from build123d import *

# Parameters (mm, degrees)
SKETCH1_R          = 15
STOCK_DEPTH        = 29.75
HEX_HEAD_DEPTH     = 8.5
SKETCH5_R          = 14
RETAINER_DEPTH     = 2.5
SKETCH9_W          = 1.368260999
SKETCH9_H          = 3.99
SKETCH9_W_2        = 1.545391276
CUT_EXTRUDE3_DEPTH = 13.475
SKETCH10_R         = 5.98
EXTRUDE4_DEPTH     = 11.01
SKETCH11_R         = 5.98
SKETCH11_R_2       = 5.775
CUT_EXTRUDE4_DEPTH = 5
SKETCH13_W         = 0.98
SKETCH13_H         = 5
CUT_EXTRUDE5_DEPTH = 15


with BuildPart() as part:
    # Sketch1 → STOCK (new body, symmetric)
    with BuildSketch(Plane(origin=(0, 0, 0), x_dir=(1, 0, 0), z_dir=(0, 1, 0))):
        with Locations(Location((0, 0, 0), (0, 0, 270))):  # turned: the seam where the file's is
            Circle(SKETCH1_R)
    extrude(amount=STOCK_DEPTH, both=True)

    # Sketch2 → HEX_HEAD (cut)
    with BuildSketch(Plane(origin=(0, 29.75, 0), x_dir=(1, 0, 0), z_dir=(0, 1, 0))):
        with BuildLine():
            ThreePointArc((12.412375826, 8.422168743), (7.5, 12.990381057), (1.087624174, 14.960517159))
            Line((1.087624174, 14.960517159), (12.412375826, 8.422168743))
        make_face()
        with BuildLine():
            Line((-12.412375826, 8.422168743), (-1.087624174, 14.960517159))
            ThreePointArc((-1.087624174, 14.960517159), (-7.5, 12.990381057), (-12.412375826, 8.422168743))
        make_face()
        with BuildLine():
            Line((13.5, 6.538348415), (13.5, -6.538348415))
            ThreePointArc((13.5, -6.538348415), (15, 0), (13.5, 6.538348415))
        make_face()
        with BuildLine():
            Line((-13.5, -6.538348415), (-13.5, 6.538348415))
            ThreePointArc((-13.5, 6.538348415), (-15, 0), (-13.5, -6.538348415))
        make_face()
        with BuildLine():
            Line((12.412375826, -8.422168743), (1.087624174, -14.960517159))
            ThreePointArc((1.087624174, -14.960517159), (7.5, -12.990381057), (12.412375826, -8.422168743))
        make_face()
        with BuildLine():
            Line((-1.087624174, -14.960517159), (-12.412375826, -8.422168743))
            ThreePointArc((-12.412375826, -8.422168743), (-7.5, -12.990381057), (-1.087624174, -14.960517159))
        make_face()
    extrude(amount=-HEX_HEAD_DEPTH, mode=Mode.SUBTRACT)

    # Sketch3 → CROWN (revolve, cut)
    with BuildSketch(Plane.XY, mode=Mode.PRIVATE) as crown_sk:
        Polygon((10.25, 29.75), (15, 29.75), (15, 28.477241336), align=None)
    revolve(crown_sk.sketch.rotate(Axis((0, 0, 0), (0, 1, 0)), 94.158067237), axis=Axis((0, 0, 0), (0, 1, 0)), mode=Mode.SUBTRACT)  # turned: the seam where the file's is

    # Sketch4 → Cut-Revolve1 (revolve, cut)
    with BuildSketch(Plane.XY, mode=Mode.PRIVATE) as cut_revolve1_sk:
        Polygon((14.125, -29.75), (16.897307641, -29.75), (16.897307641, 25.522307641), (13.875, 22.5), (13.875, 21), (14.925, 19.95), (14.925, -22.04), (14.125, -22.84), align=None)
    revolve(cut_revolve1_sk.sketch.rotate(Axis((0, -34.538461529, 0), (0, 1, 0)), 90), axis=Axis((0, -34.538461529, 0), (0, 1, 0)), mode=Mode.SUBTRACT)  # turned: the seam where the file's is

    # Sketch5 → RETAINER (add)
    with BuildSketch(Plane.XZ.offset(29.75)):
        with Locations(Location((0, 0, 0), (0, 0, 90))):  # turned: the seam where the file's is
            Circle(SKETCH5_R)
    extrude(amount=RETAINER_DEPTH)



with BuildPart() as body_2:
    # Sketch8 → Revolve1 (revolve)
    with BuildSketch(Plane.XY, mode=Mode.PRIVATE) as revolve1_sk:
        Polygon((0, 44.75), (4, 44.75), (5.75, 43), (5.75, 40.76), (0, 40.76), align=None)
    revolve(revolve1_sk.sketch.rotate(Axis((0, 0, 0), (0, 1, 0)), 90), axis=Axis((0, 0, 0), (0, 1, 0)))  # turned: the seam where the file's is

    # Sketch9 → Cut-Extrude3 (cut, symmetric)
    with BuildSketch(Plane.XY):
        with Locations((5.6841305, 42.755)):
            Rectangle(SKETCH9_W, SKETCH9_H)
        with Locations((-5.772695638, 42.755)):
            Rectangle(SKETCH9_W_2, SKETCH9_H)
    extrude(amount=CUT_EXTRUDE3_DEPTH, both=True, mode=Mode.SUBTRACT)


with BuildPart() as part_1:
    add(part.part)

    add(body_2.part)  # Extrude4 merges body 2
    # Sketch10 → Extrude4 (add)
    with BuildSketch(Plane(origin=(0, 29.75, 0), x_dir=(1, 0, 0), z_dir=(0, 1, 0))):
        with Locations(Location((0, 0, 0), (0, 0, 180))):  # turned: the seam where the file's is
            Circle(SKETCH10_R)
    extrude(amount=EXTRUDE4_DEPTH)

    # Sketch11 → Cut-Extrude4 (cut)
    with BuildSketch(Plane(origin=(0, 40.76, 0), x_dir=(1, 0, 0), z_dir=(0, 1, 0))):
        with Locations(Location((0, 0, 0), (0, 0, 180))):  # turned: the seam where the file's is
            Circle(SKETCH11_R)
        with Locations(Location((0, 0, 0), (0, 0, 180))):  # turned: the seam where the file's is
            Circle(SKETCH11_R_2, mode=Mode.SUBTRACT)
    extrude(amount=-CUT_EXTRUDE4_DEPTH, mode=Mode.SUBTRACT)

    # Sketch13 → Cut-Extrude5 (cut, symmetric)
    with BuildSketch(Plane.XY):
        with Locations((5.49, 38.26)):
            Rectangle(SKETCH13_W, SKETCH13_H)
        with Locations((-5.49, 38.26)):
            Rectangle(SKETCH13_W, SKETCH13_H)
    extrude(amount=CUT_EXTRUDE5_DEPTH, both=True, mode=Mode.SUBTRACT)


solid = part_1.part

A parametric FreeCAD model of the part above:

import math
import FreeCAD as App
import Part
import Sketcher

V = App.Vector
Q = App.Units.Quantity

doc = App.newDocument("Part")
body = doc.addObject("PartDesign::Body", "Body")

# Sketch on XZ plane
sketch1 = body.newObject("Sketcher::SketchObject", "Sketch")
sketch1.AttachmentSupport = (doc.getObject("XZ_Plane"), [""])
sketch1.MapMode = "FlatFace"
sketch1.addGeometry(Part.Circle(V(0, 0, 0), V(0, 0, 1), 15), False)
sketch1.addConstraint([
    Sketcher.Constraint("Coincident", 0, 3, -1, 1),
    Sketcher.Constraint("Diameter", 0, 30.0),
])
pad1 = body.newObject("PartDesign::Pad", "Pad")
pad1.Profile = sketch1
pad1.Length = 59.5
pad1.Midplane = True

# Sketch on XZ plane
sketch2 = body.newObject("Sketcher::SketchObject", "Sketch001")
sketch2.AttachmentSupport = (doc.getObject("XZ_Plane"), [""])
sketch2.MapMode = "FlatFace"
sketch2.AttachmentOffset = App.Placement(V(0, 0, -29.75), App.Rotation())
sketch2.addGeometry([
    Part.ArcOfCircle(Part.Circle(V(0, 0, 0), V(0, 0, 1), 15), math.radians(-86), math.radians(-34)),  # 0
    Part.LineSegment(V(1, -15, 0), V(12, -8, 0)),  # 1
    Part.LineSegment(V(-12, -8, 0), V(-1, -15, 0)),  # 2
    Part.ArcOfCircle(Part.Circle(V(0, 0, 0), V(0, 0, 1), 15), math.radians(-146), math.radians(-94)),  # 3
    Part.LineSegment(V(14, -7, 0), V(14, 7, 0)),  # 4
    Part.ArcOfCircle(Part.Circle(V(0, 0, 0), V(0, 0, 1), 15), math.radians(-26), math.radians(26)),  # 5
    Part.LineSegment(V(-14, 7, 0), V(-14, -7, 0)),  # 6
    Part.ArcOfCircle(Part.Circle(V(0, 0, 0), V(0, 0, 1), 15), math.radians(154), math.radians(206)),  # 7
    Part.LineSegment(V(12, 8, 0), V(1, 15, 0)),  # 8
    Part.ArcOfCircle(Part.Circle(V(0, 0, 0), V(0, 0, 1), 15), math.radians(34), math.radians(86)),  # 9
    Part.LineSegment(V(-1, 15, 0), V(-12, 8, 0)),  # 10
    Part.ArcOfCircle(Part.Circle(V(0, 0, 0), V(0, 0, 1), 15), math.radians(94), math.radians(146)),  # 11
], False)
sketch2.addConstraint([
    Sketcher.Constraint("Coincident", 0, 1, 1, 1),
    Sketcher.Constraint("Coincident", 1, 2, 0, 2),
    Sketcher.Constraint("Coincident", 2, 1, 3, 1),
    Sketcher.Constraint("Coincident", 3, 2, 2, 2),
    Sketcher.Constraint("Coincident", 4, 1, 5, 1),
    Sketcher.Constraint("Coincident", 5, 2, 4, 2),
    Sketcher.Constraint("Coincident", 6, 1, 7, 1),
    Sketcher.Constraint("Coincident", 7, 2, 6, 2),
    Sketcher.Constraint("Coincident", 8, 1, 9, 1),
    Sketcher.Constraint("Coincident", 9, 2, 8, 2),
    Sketcher.Constraint("Coincident", 10, 1, 11, 1),
    Sketcher.Constraint("Coincident", 11, 2, 10, 2),
    Sketcher.Constraint("Vertical", 4),
    Sketcher.Constraint("Vertical", 6),
    Sketcher.Constraint("Coincident", 0, 3, -1, 1),
    Sketcher.Constraint("Coincident", 3, 3, -1, 1),
    Sketcher.Constraint("Coincident", 5, 3, -1, 1),
    Sketcher.Constraint("Coincident", 7, 3, -1, 1),
    Sketcher.Constraint("Coincident", 9, 3, -1, 1),
    Sketcher.Constraint("Coincident", 11, 3, -1, 1),
    Sketcher.Constraint("Equal", 0, 3),
    Sketcher.Constraint("Equal", 3, 5),
    Sketcher.Constraint("Equal", 5, 7),
    Sketcher.Constraint("Equal", 7, 9),
    Sketcher.Constraint("Equal", 9, 11),
    Sketcher.Constraint("Parallel", 2, 8),
    Sketcher.Constraint("Parallel", 1, 10),
    Sketcher.Constraint("Horizontal", 1, 2, 2, 1),
    Sketcher.Constraint("Horizontal", 0, 1, 3, 2),
    Sketcher.Constraint("Horizontal", 5, 2, 6, 1),
    Sketcher.Constraint("Horizontal", 9, 2, 10, 1),
    Sketcher.Constraint("Vertical", 1, 2, 8, 1),
    Sketcher.Constraint("Radius", 0, 15.0),
    Sketcher.Constraint("Angle", 1, Q("30 deg")),
    Sketcher.Constraint("DistanceX", -1, 1, 4, 1, 13.5),
    Sketcher.Constraint("DistanceX", 2, 1, 0, 1, 13.5),
])
pocket1 = body.newObject("PartDesign::Pocket", "Pocket")
pocket1.Profile = sketch2
pocket1.Length = 8.5
pocket1.Reversed = True

# Sketch on XY plane
sketch3 = body.newObject("Sketcher::SketchObject", "Sketch002")
sketch3.AttachmentSupport = (doc.getObject("XY_Plane"), [""])
sketch3.MapMode = "FlatFace"
sketch3.addGeometry([
    Part.LineSegment(V(15, 29.8, 0), V(10.2, 29.8, 0)),
    Part.LineSegment(V(10.2, 29.8, 0), V(15, 28.5, 0)),
    Part.LineSegment(V(15, 28.5, 0), V(15, 29.8, 0)),
], False)
sketch3.addConstraint([
    Sketcher.Constraint("Coincident", 0, 2, 1, 1),
    Sketcher.Constraint("Coincident", 1, 2, 2, 1),
    Sketcher.Constraint("Coincident", 2, 2, 0, 1),
    Sketcher.Constraint("Horizontal", 0),
    Sketcher.Constraint("Vertical", 2),
    Sketcher.Constraint("Angle", 1, Q("-15 deg")),
    Sketcher.Constraint("DistanceX", -1, 1, 1, 2, 15.0),
    Sketcher.Constraint("DistanceX", 0, 2, 0, 1, 4.75),
    Sketcher.Constraint("DistanceY", -1, 1, 0, 2, 29.75),
])
groove = body.newObject("PartDesign::Groove", "Groove")
groove.Profile = sketch3
groove.ReferenceAxis = (sketch3, ["V_Axis"])
groove.Angle = 360

# Sketch on XY plane
sketch4 = body.newObject("Sketcher::SketchObject", "Sketch003")
sketch4.AttachmentSupport = (doc.getObject("XY_Plane"), [""])
sketch4.MapMode = "FlatFace"
sketch4.addGeometry([
    Part.LineSegment(V(14.1, -29.8, 0), V(16.9, -29.8, 0)),  # 0
    Part.LineSegment(V(16.9, -29.8, 0), V(16.9, 25.5, 0)),  # 1
    Part.LineSegment(V(16.9, 25.5, 0), V(13.9, 22.5, 0)),  # 2
    Part.LineSegment(V(13.9, 22.5, 0), V(13.9, 21, 0)),  # 3
    Part.LineSegment(V(13.9, 21, 0), V(14.9, 19.9, 0)),  # 4
    Part.LineSegment(V(14.9, 19.9, 0), V(14.9, -22, 0)),  # 5
    Part.LineSegment(V(14.9, -22, 0), V(14.1, -22.8, 0)),  # 6
    Part.LineSegment(V(14.1, -22.8, 0), V(14.1, -29.8, 0)),  # 7
], False)
sketch4.addConstraint([
    Sketcher.Constraint("Coincident", 0, 2, 1, 1),
    Sketcher.Constraint("Coincident", 1, 2, 2, 1),
    Sketcher.Constraint("Coincident", 2, 2, 3, 1),
    Sketcher.Constraint("Coincident", 3, 2, 4, 1),
    Sketcher.Constraint("Coincident", 4, 2, 5, 1),
    Sketcher.Constraint("Coincident", 5, 2, 6, 1),
    Sketcher.Constraint("Coincident", 6, 2, 7, 1),
    Sketcher.Constraint("Coincident", 7, 2, 0, 1),
    Sketcher.Constraint("Horizontal", 0),
    Sketcher.Constraint("Vertical", 1),
    Sketcher.Constraint("Vertical", 3),
    Sketcher.Constraint("Vertical", 5),
    Sketcher.Constraint("Vertical", 7),
    Sketcher.Constraint("Perpendicular", 2, 4),
    Sketcher.Constraint("Perpendicular", 4, 6),
    Sketcher.Constraint("Angle", 2, Q("-135 deg")),
    Sketcher.Constraint("DistanceY", 3, 2, 3, 1, 1.5),
    Sketcher.Constraint("DistanceY", -1, 1, 3, 2, 21.0),
    Sketcher.Constraint("DistanceY", 5, 2, 5, 1, 41.99),
    Sketcher.Constraint("DistanceY", 7, 2, 7, 1, 6.91),
    Sketcher.Constraint("DistanceY", 0, 2, 4, 2, 49.7),
    Sketcher.Constraint("DistanceY", 0, 2, -1, 1, 29.75),
    Sketcher.Constraint("DistanceX", -1, 1, 2, 2, 13.875),
    Sketcher.Constraint("Distance", 2, 4.274188),
])
groove2 = body.newObject("PartDesign::Groove", "Groove001")
groove2.Profile = sketch4
groove2.ReferenceAxis = (sketch4, ["V_Axis"])
groove2.Angle = 360

# Sketch on XZ plane
sketch5 = body.newObject("Sketcher::SketchObject", "Sketch004")
sketch5.AttachmentSupport = (doc.getObject("XZ_Plane"), [""])
sketch5.MapMode = "FlatFace"
sketch5.AttachmentOffset = App.Placement(V(0, 0, 29.75), App.Rotation())
sketch5.addGeometry(Part.Circle(V(0, 0, 0), V(0, 0, 1), 14), False)
sketch5.addConstraint([
    Sketcher.Constraint("Coincident", 0, 3, -1, 1),
    Sketcher.Constraint("Diameter", 0, 28.0),
])
pad2 = body.newObject("PartDesign::Pad", "Pad001")
pad2.Profile = sketch5
pad2.Length = 2.5
body2 = doc.addObject("PartDesign::Body", "Body001")

# Sketch on XY plane
sketch6 = body2.newObject("Sketcher::SketchObject", "Sketch005")
sketch6.AttachmentSupport = (doc.getObject("XY_Plane001"), [""])
sketch6.MapMode = "FlatFace"
sketch6.addGeometry([
    Part.LineSegment(V(4, 44.8, 0), V(0, 44.8, 0)),  # 0
    Part.LineSegment(V(0, 44.8, 0), V(0, 40.8, 0)),  # 1
    Part.LineSegment(V(0, 40.8, 0), V(5.8, 40.8, 0)),  # 2
    Part.LineSegment(V(5.8, 40.8, 0), V(5.8, 43, 0)),  # 3
    Part.LineSegment(V(5.8, 43, 0), V(4, 44.8, 0)),  # 4
], False)
sketch6.addConstraint([
    Sketcher.Constraint("Coincident", 0, 2, 1, 1),
    Sketcher.Constraint("Coincident", 1, 2, 2, 1),
    Sketcher.Constraint("Coincident", 2, 2, 3, 1),
    Sketcher.Constraint("Coincident", 3, 2, 4, 1),
    Sketcher.Constraint("Coincident", 4, 2, 0, 1),
    Sketcher.Constraint("Horizontal", 0),
    Sketcher.Constraint("Vertical", 1),
    Sketcher.Constraint("Horizontal", 2),
    Sketcher.Constraint("Vertical", 3),
    Sketcher.Constraint("PointOnObject", 0, 2, -2),
    Sketcher.Constraint("DistanceX", 0, 2, 0, 1, 4.0),
    Sketcher.Constraint("Angle", 4, Q("135 deg")),
    Sketcher.Constraint("DistanceY", -1, 1, 3, 2, 43.0),
    Sketcher.Constraint("DistanceX", 2, 1, 2, 2, 5.75),
    Sketcher.Constraint("DistanceY", 1, 2, 1, 1, 3.99),
])
revolution = body2.newObject("PartDesign::Revolution", "Revolution")
revolution.Profile = sketch6
revolution.ReferenceAxis = (sketch6, ["V_Axis"])
revolution.Angle = 360

# Sketch on XY plane
sketch7 = body2.newObject("Sketcher::SketchObject", "Sketch006")
sketch7.AttachmentSupport = (doc.getObject("XY_Plane001"), [""])
sketch7.MapMode = "FlatFace"
sketch7.addGeometry([
    Part.LineSegment(V(5, 44.8, 0), V(5, 40.8, 0)),  # 0
    Part.LineSegment(V(5, 40.8, 0), V(6.4, 40.8, 0)),  # 1
    Part.LineSegment(V(6.4, 40.8, 0), V(6.4, 44.8, 0)),  # 2
    Part.LineSegment(V(6.4, 44.8, 0), V(5, 44.8, 0)),  # 3
    Part.LineSegment(V(-6.5, 44.8, 0), V(-6.5, 40.8, 0)),  # 4
    Part.LineSegment(V(-6.5, 40.8, 0), V(-5, 40.8, 0)),  # 5
    Part.LineSegment(V(-5, 40.8, 0), V(-5, 44.8, 0)),  # 6
    Part.LineSegment(V(-5, 44.8, 0), V(-6.5, 44.8, 0)),  # 7
], False)
sketch7.addConstraint([
    Sketcher.Constraint("Coincident", 0, 2, 1, 1),
    Sketcher.Constraint("Coincident", 1, 2, 2, 1),
    Sketcher.Constraint("Coincident", 2, 2, 3, 1),
    Sketcher.Constraint("Coincident", 3, 2, 0, 1),
    Sketcher.Constraint("Coincident", 4, 2, 5, 1),
    Sketcher.Constraint("Coincident", 5, 2, 6, 1),
    Sketcher.Constraint("Coincident", 6, 2, 7, 1),
    Sketcher.Constraint("Coincident", 7, 2, 4, 1),
    Sketcher.Constraint("Vertical", 0),
    Sketcher.Constraint("Horizontal", 1),
    Sketcher.Constraint("Vertical", 2),
    Sketcher.Constraint("Horizontal", 3),
    Sketcher.Constraint("Vertical", 4),
    Sketcher.Constraint("Horizontal", 5),
    Sketcher.Constraint("Vertical", 6),
    Sketcher.Constraint("Horizontal", 7),
    Sketcher.Constraint("Symmetric", 0, 2, 5, 2, -2),
    Sketcher.Constraint("Horizontal", 3, 2, 6, 2),
    Sketcher.Constraint("DistanceX", -1, 1, 0, 2, 5.0),
    Sketcher.Constraint("DistanceY", 0, 2, 0, 1, 3.99),
    Sketcher.Constraint("DistanceY", -1, 1, 0, 2, 40.76),
    Sketcher.Constraint("DistanceX", 1, 1, 1, 2, 1.368261),
    Sketcher.Constraint("DistanceX", 5, 1, 5, 2, 1.545391),
])
pocket2 = body2.newObject("PartDesign::Pocket", "Pocket001")
pocket2.Profile = sketch7
pocket2.Length = 26.95
pocket2.Midplane = True
body.AllowCompound = True
doc.recompute()

boolean = body.newObject("PartDesign::Boolean", "Boolean")
boolean.Type = "Fuse"
boolean.addObjects([body2])

# Sketch on XZ plane
sketch8 = body.newObject("Sketcher::SketchObject", "Sketch007")
sketch8.AttachmentSupport = (doc.getObject("XZ_Plane"), [""])
sketch8.MapMode = "FlatFace"
sketch8.AttachmentOffset = App.Placement(V(0, 0, -29.75), App.Rotation())
sketch8.addGeometry(Part.Circle(V(0, 0, 0), V(0, 0, 1), 6), False)
sketch8.addConstraint([
    Sketcher.Constraint("Coincident", 0, 3, -1, 1),
    Sketcher.Constraint("Diameter", 0, 11.96),
])
pad3 = body.newObject("PartDesign::Pad", "Pad002")
pad3.Profile = sketch8
pad3.Length = 11.01
pad3.Reversed = True

# Sketch on XZ plane
sketch9 = body.newObject("Sketcher::SketchObject", "Sketch008")
sketch9.AttachmentSupport = (doc.getObject("XZ_Plane"), [""])
sketch9.MapMode = "FlatFace"
sketch9.AttachmentOffset = App.Placement(V(0, 0, -40.76), App.Rotation())
sketch9.addGeometry([
    Part.Circle(V(0, 0, 0), V(0, 0, 1), 6),
    Part.Circle(V(0, 0, 0), V(0, 0, 1), 6),
], False)
sketch9.addConstraint([
    Sketcher.Constraint("Coincident", 0, 3, -1, 1),
    Sketcher.Constraint("Coincident", 1, 3, -1, 1),
    Sketcher.Constraint("Diameter", 0, 11.96),
    Sketcher.Constraint("Diameter", 1, 11.55),
])
pocket3 = body.newObject("PartDesign::Pocket", "Pocket002")
pocket3.Profile = sketch9
pocket3.Length = 5
pocket3.Reversed = True

# Sketch on XY plane
sketch10 = body.newObject("Sketcher::SketchObject", "Sketch009")
sketch10.AttachmentSupport = (doc.getObject("XY_Plane"), [""])
sketch10.MapMode = "FlatFace"
sketch10.addGeometry([
    Part.LineSegment(V(5, 40.8, 0), V(5, 35.8, 0)),  # 0
    Part.LineSegment(V(5, 35.8, 0), V(6, 35.8, 0)),  # 1
    Part.LineSegment(V(6, 35.8, 0), V(6, 40.8, 0)),  # 2
    Part.LineSegment(V(6, 40.8, 0), V(5, 40.8, 0)),  # 3
    Part.LineSegment(V(-6, 40.8, 0), V(-6, 35.8, 0)),  # 4
    Part.LineSegment(V(-6, 35.8, 0), V(-5, 35.8, 0)),  # 5
    Part.LineSegment(V(-5, 35.8, 0), V(-5, 40.8, 0)),  # 6
    Part.LineSegment(V(-5, 40.8, 0), V(-6, 40.8, 0)),  # 7
], False)
sketch10.addConstraint([
    Sketcher.Constraint("Coincident", 0, 2, 1, 1),
    Sketcher.Constraint("Coincident", 1, 2, 2, 1),
    Sketcher.Constraint("Coincident", 2, 2, 3, 1),
    Sketcher.Constraint("Coincident", 3, 2, 0, 1),
    Sketcher.Constraint("Coincident", 4, 2, 5, 1),
    Sketcher.Constraint("Coincident", 5, 2, 6, 1),
    Sketcher.Constraint("Coincident", 6, 2, 7, 1),
    Sketcher.Constraint("Coincident", 7, 2, 4, 1),
    Sketcher.Constraint("Vertical", 0),
    Sketcher.Constraint("Horizontal", 1),
    Sketcher.Constraint("Vertical", 2),
    Sketcher.Constraint("Horizontal", 3),
    Sketcher.Constraint("Vertical", 4),
    Sketcher.Constraint("Horizontal", 5),
    Sketcher.Constraint("Vertical", 6),
    Sketcher.Constraint("Horizontal", 7),
    Sketcher.Constraint("Symmetric", 1, 2, 4, 2, -2),
    Sketcher.Constraint("Symmetric", 3, 2, 6, 2, -2),
    Sketcher.Constraint("DistanceY", 0, 2, 0, 1, 5.0),
    Sketcher.Constraint("DistanceX", -1, 1, 0, 2, 5.0),
    Sketcher.Constraint("DistanceX", 1, 1, 1, 2, 0.98),
    Sketcher.Constraint("DistanceY", -1, 1, 0, 2, 35.76),
])
pocket4 = body.newObject("PartDesign::Pocket", "Pocket003")
pocket4.Profile = sketch10
pocket4.Length = 30
pocket4.Midplane = True

doc.recompute()
